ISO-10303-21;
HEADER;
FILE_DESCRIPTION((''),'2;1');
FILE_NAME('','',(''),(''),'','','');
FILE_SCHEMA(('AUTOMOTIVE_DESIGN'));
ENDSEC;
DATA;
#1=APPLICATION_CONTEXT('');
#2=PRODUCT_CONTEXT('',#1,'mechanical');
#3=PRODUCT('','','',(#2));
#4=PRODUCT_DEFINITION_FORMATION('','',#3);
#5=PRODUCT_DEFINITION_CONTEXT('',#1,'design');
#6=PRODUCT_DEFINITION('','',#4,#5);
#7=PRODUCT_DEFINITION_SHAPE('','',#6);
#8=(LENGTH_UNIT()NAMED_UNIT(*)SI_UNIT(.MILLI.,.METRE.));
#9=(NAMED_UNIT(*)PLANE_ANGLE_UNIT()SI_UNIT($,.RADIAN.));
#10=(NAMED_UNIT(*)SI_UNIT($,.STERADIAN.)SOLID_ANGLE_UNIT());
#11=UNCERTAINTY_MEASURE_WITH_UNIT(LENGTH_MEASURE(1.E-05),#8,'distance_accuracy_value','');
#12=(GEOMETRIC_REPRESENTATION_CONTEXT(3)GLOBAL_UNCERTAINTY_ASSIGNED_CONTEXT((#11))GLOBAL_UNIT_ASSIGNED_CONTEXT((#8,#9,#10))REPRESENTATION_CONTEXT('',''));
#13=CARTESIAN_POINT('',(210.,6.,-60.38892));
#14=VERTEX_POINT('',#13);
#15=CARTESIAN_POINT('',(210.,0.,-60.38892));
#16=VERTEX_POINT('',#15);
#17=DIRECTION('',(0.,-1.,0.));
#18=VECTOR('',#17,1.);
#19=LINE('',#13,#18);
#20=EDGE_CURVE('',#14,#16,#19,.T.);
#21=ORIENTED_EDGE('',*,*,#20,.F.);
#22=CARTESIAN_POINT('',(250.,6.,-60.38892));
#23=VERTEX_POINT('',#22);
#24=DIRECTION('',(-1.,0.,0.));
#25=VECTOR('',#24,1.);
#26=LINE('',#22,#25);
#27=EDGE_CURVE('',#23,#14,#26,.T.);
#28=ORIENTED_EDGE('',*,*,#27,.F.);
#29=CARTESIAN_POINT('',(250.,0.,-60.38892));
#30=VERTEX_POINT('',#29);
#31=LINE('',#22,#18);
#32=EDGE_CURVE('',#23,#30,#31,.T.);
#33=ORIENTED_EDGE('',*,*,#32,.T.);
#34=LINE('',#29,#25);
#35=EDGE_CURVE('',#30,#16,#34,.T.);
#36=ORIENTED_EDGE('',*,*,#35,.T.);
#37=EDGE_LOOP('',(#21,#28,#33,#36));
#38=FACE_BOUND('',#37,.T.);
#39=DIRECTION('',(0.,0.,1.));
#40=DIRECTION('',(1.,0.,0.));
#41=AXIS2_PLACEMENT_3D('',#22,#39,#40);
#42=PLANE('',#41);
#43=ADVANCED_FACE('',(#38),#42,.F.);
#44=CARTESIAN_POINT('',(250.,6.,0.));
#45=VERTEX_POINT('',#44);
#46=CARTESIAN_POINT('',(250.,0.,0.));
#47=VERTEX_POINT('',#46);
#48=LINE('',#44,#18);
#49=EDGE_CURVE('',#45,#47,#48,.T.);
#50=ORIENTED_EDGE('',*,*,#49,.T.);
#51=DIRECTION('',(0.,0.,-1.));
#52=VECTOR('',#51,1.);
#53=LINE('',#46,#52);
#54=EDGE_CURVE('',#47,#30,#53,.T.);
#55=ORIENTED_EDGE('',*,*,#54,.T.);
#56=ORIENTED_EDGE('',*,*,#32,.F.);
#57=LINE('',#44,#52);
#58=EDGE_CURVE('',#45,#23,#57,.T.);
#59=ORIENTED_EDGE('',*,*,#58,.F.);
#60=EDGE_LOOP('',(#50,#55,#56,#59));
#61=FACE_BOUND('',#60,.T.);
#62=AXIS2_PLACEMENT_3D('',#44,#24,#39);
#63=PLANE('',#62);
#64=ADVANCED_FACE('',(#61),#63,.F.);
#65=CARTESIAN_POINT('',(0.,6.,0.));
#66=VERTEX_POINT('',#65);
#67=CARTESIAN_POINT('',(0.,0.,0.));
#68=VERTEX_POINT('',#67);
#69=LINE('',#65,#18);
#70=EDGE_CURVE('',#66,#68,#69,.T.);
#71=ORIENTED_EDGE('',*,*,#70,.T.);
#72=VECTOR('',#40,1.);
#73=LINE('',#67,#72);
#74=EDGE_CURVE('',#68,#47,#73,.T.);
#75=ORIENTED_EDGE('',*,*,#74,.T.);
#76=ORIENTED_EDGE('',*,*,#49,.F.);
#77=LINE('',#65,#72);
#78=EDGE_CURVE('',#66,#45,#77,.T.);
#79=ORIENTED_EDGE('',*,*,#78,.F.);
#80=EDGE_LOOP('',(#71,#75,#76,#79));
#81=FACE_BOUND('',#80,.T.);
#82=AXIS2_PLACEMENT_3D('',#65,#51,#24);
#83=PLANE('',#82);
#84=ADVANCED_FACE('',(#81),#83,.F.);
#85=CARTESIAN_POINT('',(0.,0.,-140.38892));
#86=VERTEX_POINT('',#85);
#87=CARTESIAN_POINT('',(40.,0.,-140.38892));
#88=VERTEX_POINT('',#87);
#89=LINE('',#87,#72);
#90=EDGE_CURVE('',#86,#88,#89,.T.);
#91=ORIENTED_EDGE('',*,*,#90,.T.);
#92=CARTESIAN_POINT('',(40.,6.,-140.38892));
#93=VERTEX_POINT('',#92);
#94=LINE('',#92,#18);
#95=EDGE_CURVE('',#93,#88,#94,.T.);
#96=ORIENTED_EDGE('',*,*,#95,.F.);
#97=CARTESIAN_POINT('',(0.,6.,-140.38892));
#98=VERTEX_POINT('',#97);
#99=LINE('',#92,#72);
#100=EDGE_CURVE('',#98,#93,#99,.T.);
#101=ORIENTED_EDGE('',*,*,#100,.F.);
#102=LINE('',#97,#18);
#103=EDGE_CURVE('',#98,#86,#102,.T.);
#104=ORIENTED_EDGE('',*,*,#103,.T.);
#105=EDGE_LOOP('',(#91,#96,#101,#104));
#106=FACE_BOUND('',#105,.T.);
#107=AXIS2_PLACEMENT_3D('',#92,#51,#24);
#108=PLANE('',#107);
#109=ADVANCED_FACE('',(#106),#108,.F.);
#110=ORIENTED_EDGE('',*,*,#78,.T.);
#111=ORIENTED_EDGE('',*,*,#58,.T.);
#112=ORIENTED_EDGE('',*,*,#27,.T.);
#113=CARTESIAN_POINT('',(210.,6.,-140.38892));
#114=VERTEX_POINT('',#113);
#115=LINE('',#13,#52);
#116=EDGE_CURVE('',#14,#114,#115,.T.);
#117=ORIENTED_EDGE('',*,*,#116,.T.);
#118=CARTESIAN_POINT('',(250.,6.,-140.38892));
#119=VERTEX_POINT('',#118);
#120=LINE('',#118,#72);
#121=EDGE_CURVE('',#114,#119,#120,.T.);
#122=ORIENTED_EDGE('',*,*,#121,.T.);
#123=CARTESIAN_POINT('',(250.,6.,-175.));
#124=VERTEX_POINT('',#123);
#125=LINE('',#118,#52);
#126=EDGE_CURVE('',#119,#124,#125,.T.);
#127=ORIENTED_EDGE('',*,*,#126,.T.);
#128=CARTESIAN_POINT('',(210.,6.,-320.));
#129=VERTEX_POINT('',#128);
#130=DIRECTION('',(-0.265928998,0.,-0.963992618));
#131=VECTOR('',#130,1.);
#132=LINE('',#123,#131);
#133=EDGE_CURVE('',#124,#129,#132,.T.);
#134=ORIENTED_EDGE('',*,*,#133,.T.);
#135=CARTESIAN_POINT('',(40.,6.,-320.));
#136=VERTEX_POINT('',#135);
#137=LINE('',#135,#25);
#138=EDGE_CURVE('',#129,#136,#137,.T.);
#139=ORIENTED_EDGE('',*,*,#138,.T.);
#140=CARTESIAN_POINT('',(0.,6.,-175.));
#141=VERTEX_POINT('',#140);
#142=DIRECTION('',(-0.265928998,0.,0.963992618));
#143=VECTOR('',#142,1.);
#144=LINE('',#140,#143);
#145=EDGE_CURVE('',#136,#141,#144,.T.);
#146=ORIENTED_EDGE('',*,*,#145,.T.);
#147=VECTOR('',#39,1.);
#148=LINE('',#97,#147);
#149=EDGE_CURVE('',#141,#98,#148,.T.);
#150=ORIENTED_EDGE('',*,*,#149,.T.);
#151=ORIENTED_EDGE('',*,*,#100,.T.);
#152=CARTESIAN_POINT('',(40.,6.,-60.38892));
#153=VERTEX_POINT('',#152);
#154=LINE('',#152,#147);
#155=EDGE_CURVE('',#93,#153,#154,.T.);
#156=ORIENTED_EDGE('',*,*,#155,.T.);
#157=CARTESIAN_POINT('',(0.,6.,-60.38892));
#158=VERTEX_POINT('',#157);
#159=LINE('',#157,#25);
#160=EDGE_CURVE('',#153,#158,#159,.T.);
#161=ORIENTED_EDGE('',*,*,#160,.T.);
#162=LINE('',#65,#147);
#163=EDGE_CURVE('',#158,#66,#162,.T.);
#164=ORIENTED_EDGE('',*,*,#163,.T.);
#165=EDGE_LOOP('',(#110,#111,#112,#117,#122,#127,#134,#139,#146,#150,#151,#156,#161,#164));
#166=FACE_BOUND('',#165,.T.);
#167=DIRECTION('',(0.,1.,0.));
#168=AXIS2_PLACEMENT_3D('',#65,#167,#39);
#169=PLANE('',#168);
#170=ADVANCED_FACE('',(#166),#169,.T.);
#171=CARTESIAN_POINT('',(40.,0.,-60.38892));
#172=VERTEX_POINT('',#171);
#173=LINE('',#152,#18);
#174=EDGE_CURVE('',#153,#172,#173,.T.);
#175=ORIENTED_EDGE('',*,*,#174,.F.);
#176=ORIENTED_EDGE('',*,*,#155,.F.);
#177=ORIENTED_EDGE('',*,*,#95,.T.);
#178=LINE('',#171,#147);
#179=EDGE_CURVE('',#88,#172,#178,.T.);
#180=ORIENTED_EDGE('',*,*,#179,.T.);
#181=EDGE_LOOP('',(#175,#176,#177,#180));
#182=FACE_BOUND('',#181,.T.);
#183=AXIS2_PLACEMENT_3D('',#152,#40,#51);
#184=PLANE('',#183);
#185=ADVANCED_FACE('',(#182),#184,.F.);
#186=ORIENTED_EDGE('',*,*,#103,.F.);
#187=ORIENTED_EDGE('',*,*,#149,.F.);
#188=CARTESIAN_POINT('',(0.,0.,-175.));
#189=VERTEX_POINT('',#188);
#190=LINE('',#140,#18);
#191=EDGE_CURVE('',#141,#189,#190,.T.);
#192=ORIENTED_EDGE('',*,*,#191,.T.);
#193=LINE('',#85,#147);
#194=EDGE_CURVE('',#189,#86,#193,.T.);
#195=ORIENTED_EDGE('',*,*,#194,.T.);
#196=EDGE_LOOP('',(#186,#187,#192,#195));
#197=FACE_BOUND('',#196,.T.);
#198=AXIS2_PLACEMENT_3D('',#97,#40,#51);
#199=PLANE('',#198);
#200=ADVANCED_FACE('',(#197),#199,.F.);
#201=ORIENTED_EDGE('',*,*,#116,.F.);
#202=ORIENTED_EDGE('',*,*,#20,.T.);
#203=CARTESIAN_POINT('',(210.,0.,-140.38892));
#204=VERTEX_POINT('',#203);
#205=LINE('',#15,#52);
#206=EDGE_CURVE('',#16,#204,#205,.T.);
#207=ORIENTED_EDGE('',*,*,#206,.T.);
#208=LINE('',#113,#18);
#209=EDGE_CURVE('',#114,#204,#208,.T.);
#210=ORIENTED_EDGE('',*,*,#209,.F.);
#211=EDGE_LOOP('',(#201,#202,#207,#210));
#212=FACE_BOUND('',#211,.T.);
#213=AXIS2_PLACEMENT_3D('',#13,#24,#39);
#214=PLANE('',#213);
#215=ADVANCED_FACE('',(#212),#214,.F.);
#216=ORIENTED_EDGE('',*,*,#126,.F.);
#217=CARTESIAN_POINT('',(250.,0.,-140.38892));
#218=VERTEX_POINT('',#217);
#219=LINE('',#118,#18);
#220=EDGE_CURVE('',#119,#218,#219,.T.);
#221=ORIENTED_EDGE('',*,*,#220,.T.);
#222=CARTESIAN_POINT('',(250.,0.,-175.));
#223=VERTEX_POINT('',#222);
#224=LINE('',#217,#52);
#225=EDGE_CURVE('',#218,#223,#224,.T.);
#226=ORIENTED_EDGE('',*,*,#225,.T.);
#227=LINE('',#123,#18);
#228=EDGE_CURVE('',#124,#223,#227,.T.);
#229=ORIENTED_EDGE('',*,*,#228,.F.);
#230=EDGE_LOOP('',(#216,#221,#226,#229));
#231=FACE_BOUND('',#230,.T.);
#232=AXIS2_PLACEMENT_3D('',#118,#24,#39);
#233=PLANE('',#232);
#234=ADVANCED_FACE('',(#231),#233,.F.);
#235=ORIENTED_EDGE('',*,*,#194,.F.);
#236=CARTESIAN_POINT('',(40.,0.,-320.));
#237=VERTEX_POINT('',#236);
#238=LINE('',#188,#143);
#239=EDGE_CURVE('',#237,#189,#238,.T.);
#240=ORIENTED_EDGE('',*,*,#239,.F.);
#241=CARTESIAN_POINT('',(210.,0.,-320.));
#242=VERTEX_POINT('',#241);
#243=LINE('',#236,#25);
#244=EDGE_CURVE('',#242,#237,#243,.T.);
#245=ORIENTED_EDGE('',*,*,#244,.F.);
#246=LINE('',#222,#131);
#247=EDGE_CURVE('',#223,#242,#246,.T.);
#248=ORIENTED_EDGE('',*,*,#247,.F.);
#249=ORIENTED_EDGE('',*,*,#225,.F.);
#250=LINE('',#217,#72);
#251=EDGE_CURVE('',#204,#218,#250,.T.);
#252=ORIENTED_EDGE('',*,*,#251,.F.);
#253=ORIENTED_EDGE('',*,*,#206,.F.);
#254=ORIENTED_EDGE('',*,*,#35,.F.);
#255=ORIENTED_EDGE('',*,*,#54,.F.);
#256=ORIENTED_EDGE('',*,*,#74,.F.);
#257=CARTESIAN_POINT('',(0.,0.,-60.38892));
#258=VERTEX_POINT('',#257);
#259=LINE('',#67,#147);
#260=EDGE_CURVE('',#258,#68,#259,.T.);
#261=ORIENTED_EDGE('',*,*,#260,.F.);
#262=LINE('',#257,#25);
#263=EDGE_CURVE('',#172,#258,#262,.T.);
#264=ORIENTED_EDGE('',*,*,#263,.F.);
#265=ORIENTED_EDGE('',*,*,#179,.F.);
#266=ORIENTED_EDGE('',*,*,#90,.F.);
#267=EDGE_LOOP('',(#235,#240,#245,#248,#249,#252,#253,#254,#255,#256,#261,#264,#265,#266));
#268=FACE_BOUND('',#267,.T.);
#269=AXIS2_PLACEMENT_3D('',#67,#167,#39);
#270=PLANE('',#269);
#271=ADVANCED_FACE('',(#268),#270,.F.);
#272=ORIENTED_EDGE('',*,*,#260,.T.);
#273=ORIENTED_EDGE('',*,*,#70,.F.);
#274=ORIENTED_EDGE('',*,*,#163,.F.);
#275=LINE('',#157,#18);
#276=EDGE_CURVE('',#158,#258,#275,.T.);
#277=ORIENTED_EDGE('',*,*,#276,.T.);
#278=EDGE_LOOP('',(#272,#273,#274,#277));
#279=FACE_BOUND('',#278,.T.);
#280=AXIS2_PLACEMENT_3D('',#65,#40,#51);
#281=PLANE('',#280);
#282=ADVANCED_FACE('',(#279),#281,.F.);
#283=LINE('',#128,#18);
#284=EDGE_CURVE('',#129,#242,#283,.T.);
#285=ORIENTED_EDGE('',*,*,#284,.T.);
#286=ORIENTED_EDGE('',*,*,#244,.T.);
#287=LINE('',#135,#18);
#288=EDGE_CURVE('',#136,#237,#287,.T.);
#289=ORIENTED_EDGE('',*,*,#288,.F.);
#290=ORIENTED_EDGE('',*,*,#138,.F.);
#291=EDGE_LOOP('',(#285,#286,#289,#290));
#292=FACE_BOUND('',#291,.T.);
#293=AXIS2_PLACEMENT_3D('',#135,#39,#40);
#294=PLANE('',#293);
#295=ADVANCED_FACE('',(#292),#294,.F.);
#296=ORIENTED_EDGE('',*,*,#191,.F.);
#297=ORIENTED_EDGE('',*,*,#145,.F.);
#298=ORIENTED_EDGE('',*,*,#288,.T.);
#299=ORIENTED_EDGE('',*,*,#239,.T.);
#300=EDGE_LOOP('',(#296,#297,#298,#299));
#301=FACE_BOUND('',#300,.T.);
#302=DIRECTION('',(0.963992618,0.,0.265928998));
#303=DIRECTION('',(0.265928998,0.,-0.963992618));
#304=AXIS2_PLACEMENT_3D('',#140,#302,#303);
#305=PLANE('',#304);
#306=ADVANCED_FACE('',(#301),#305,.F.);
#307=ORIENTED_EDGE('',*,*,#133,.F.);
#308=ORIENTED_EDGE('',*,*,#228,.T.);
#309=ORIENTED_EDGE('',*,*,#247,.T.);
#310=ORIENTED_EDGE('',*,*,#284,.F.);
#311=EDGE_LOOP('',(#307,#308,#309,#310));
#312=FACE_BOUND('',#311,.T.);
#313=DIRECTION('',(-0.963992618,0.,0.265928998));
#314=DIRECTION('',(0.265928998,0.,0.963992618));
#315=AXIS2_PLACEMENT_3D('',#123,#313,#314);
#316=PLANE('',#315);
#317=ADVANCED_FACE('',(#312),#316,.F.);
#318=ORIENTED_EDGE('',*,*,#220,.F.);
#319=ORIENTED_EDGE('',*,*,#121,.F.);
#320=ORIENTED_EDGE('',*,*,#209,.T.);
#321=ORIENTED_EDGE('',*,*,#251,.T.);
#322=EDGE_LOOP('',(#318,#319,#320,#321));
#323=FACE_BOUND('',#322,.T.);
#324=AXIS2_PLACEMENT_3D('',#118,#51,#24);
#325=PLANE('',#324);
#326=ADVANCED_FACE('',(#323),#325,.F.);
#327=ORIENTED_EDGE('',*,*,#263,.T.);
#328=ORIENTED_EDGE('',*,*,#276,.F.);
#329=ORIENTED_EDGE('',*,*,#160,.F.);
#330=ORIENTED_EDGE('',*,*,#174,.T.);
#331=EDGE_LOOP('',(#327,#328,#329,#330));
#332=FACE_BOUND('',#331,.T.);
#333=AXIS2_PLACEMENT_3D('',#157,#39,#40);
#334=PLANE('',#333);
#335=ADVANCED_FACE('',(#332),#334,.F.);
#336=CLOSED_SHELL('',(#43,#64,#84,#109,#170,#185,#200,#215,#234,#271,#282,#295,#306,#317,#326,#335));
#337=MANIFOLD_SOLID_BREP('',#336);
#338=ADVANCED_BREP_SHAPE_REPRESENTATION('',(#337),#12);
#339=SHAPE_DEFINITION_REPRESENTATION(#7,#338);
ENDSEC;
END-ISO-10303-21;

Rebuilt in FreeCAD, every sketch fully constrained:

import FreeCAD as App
import Part
import Sketcher

V = App.Vector
Q = App.Units.Quantity


def add_polygon(sketch, points):
    """Adds a closed chain of lines whose ends are joined by coincident constraints."""
    first, n = sketch.GeometryCount, len(points)
    for a, b in zip(points, points[1:] + points[:1]):
        sketch.addGeometry(Part.LineSegment(App.Vector(*a, 0), App.Vector(*b, 0)), False)
    for i in range(n):
        sketch.addConstraint(Sketcher.Constraint("Coincident", first + i, 2, first + (i + 1) % n, 1))

doc = App.newDocument("Part")
params = doc.addObject("Spreadsheet::Sheet", "Params")
for row, (alias, value) in enumerate([
    ("sketch1_width", "250 mm"),
    ("sketch1_width2", "40 mm"),
    ("sketch1_height", "80 mm"),
    ("pad1_length", "6 mm"),
], start=1):
    params.set(f"A{row}", alias)
    params.set(f"B{row}", "=" + value)
    params.setAlias(f"B{row}", alias)

body = doc.addObject("PartDesign::Body", "Body")

# Sketch on XZ plane
sketch1 = doc.addObject("Sketcher::SketchObject", "Sketch")
body.addObject(sketch1)
sketch1.AttachmentSupport = (doc.XZ_Plane, [""])
sketch1.MapMode = "FlatFace"
add_polygon(sketch1, [(0, -60.38892), (0, 0), (250, 0), (250, -60.38892), (210, -60.38892), (210, -140.38892), (250, -140.38892), (250, -175), (210, -320), (40, -320), (0, -175), (0, -140.38892), (40, -140.38892), (40, -60.38892)])  # lines 0-13
sketch1.addConstraint([
    Sketcher.Constraint("Vertical", 0),
    Sketcher.Constraint("Horizontal", 1),
    Sketcher.Constraint("Vertical", 2),
    Sketcher.Constraint("Horizontal", 3),
    Sketcher.Constraint("Vertical", 4),
    Sketcher.Constraint("Horizontal", 5),
    Sketcher.Constraint("Vertical", 6),
    Sketcher.Constraint("Horizontal", 8),
    Sketcher.Constraint("Vertical", 10),
    Sketcher.Constraint("Horizontal", 11),
    Sketcher.Constraint("Vertical", 12),
    Sketcher.Constraint("Horizontal", 13),
    Sketcher.Constraint("Coincident", 0, 2, -1, 1),
    Sketcher.Constraint("PointOnObject", 9, 2, -2),
    Sketcher.Constraint("Horizontal", 6, 2, 9, 2),
    Sketcher.Constraint("Horizontal", 5, 2, 10, 2),
    Sketcher.Constraint("Horizontal", 3, 2, 12, 2),
    Sketcher.Constraint("Vertical", 2, 2, 5, 2),
    Sketcher.Constraint("Vertical", 4, 2, 7, 2),
    Sketcher.Constraint("Vertical", 8, 2, 11, 2),
    Sketcher.Constraint("Equal", 5, 11),
    Sketcher.Constraint("DistanceX", 1, 1, 1, 2, Q("250 mm")),
    Sketcher.Constraint("DistanceX", 3, 2, 3, 1, Q("40 mm")),
    Sketcher.Constraint("DistanceY", 4, 2, 4, 1, Q("80 mm")),
    Sketcher.Constraint("DistanceY", 6, 2, -1, 1, Q("175 mm")),
    Sketcher.Constraint("DistanceY", 7, 2, -1, 1, Q("320 mm")),
    Sketcher.Constraint("DistanceY", 0, 1, 0, 2, Q("60.38892 mm")),
])
sketch1.setExpression("Constraints[35]", "Params.sketch1_width")
sketch1.setExpression("Constraints[36]", "Params.sketch1_width2")
sketch1.setExpression("Constraints[37]", "Params.sketch1_height")
pad1 = doc.addObject("PartDesign::Pad", "Pad")
body.addObject(pad1)
pad1.Profile = sketch1
pad1.setExpression("Length", "Params.pad1_length")
pad1.Reversed = True

doc.recompute()
